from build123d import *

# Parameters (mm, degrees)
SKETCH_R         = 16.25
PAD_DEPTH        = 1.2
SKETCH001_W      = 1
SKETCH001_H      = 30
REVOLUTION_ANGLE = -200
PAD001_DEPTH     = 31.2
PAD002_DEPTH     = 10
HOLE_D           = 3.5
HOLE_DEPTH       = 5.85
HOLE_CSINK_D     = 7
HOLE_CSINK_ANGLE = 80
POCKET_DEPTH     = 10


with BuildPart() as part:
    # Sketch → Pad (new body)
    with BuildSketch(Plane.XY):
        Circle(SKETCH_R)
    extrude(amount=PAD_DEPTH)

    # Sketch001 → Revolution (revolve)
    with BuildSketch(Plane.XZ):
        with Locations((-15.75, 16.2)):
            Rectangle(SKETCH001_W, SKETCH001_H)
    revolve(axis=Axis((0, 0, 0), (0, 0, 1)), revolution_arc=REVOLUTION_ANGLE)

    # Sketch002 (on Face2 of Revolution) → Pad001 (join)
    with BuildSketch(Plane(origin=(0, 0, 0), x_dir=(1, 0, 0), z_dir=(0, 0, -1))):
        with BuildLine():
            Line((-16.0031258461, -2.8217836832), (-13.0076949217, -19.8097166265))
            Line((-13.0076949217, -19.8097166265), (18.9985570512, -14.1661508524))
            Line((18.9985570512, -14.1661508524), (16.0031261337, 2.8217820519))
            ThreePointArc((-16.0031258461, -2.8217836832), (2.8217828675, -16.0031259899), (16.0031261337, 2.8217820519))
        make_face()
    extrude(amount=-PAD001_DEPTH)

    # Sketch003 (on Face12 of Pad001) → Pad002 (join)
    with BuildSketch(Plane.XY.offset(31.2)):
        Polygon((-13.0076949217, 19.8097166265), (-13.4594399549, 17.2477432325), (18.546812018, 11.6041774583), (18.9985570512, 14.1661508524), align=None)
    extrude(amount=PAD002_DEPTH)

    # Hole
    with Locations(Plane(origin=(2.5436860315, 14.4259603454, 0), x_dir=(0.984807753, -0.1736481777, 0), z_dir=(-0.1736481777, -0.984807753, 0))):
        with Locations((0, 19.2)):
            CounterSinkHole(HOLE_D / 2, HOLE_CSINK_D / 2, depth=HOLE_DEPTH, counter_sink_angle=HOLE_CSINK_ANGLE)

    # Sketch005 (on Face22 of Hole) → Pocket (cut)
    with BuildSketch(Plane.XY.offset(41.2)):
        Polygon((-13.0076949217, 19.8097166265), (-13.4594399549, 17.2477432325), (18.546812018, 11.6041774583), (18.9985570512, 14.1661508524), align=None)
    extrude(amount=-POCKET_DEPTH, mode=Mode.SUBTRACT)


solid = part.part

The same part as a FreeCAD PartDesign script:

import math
import FreeCAD as App
import Part
import Sketcher

V = App.Vector
Q = App.Units.Quantity

doc = App.newDocument("Part")
body = doc.addObject("PartDesign::Body", "Body")

sketch1 = doc.addObject("Sketcher::SketchObject", "Sketch")
body.addObject(sketch1)
sketch1.AttachmentSupport = (doc.XY_Plane, [""])
sketch1.MapMode = "FlatFace"
sketch1.addGeometry(Part.Circle(V(0, 0, 0), V(0, 0, 1), 16), False)
sketch1.addConstraint([
    Sketcher.Constraint("Coincident", 0, 3, -1, 1),
    Sketcher.Constraint("Diameter", 0, 32.5),
])
pad1 = doc.addObject("PartDesign::Pad", "Pad")
body.addObject(pad1)
pad1.Profile = sketch1
pad1.Length = 1.2

sketch2 = doc.addObject("Sketcher::SketchObject", "Sketch001")
body.addObject(sketch2)
sketch2.AttachmentSupport = (doc.XZ_Plane, [""])
sketch2.MapMode = "FlatFace"
sketch2.addGeometry([
    Part.LineSegment(V(-16.2, 31.2, 0), V(-16.2, 1.2, 0)),
    Part.LineSegment(V(-16.2, 1.2, 0), V(-15.2, 1.2, 0)),
    Part.LineSegment(V(-15.2, 1.2, 0), V(-15.2, 31.2, 0)),
    Part.LineSegment(V(-15.2, 31.2, 0), V(-16.2, 31.2, 0)),
], False)
sketch2.addConstraint([
    Sketcher.Constraint("Coincident", 0, 2, 1, 1),
    Sketcher.Constraint("Coincident", 1, 2, 2, 1),
    Sketcher.Constraint("Coincident", 2, 2, 3, 1),
    Sketcher.Constraint("Coincident", 3, 2, 0, 1),
    Sketcher.Constraint("Vertical", 0),
    Sketcher.Constraint("Horizontal", 1),
    Sketcher.Constraint("Vertical", 2),
    Sketcher.Constraint("Horizontal", 3),
    Sketcher.Constraint("DistanceX", 1, 1, 1, 2, 1.0),
    Sketcher.Constraint("DistanceY", 0, 2, 0, 1, 30.0),
    Sketcher.Constraint("DistanceY", -1, 1, 0, 2, 1.2),
    Sketcher.Constraint("DistanceX", 0, 2, -1, 1, 16.25),
])
revolution = doc.addObject("PartDesign::Revolution", "Revolution")
body.addObject(revolution)
revolution.Profile = sketch2
revolution.ReferenceAxis = (sketch2, ["V_Axis"])
revolution.Angle = 200
revolution.Reversed = True

sketch3 = doc.addObject("Sketcher::SketchObject", "Sketch002")
body.addObject(sketch3)
sketch3.AttachmentSupport = (doc.XY_Plane, [""])
sketch3.MapMode = "FlatFace"
sketch3.addGeometry([
    Part.LineSegment(V(-16, 3, 0), V(-13, 20, 0)),
    Part.LineSegment(V(-13, 20, 0), V(19, 14, 0)),
    Part.LineSegment(V(19, 14, 0), V(16, -3, 0)),
    Part.ArcOfCircle(Part.Circle(V(0, 0, 0), V(0, 0, 1), 16), math.radians(-10), math.radians(170)),
], False)
sketch3.addConstraint([
    Sketcher.Constraint("Coincident", 0, 2, 1, 1),
    Sketcher.Constraint("Coincident", 1, 2, 2, 1),
    Sketcher.Constraint("Tangent", 2, 2, 3, 1),
    Sketcher.Constraint("Tangent", 3, 2, 0, 1),
    Sketcher.Constraint("Coincident", 3, 3, -1, 1),
    Sketcher.Constraint("Perpendicular", 0, 1),
    Sketcher.Constraint("Perpendicular", 1, 2),
    Sketcher.Constraint("Angle", 0, Q("80 deg")),
    Sketcher.Constraint("Radius", 3, 16.25),
    Sketcher.Constraint("Distance", 0, 17.249999),
])
pad2 = doc.addObject("PartDesign::Pad", "Pad001")
body.addObject(pad2)
pad2.Profile = sketch3
pad2.Length = 31.2

sketch4 = doc.addObject("Sketcher::SketchObject", "Sketch003")
body.addObject(sketch4)
sketch4.AttachmentSupport = (doc.XY_Plane, [""])
sketch4.MapMode = "FlatFace"
sketch4.AttachmentOffset = App.Placement(V(0, 0, 31.2), App.Rotation())
sketch4.addGeometry([
    Part.LineSegment(V(-13, 19.8, 0), V(-13.5, 17.2, 0)),
    Part.LineSegment(V(-13.5, 17.2, 0), V(18.5, 11.6, 0)),
    Part.LineSegment(V(18.5, 11.6, 0), V(19, 14.2, 0)),
    Part.LineSegment(V(19, 14.2, 0), V(-13, 19.8, 0)),
], False)
sketch4.addConstraint([
    Sketcher.Constraint("Coincident", 0, 2, 1, 1),
    Sketcher.Constraint("Coincident", 1, 2, 2, 1),
    Sketcher.Constraint("Coincident", 2, 2, 3, 1),
    Sketcher.Constraint("Coincident", 3, 2, 0, 1),
    Sketcher.Constraint("Perpendicular", 0, 1),
    Sketcher.Constraint("Perpendicular", 1, 2),
    Sketcher.Constraint("Perpendicular", 2, 3),
    Sketcher.Constraint("Angle", 0, Q("-100 deg")),
    Sketcher.Constraint("Distance", 1, 32.5),
    Sketcher.Constraint("DistanceX", 0, 2, -1, 1, 13.45944),
    Sketcher.Constraint("DistanceY", -1, 1, 2, 2, 14.166151),
    Sketcher.Constraint("DistanceY", 1, 2, 3, 2, 8.205539),
])
pad3 = doc.addObject("PartDesign::Pad", "Pad002")
body.addObject(pad3)
pad3.Profile = sketch4
pad3.Length = 10

sketch5 = doc.addObject("Sketcher::SketchObject", "Sketch004")
body.addObject(sketch5)
sketch5.Placement = App.Placement(V(2.543686, 14.42596, 0), App.Rotation(V(0.984807753, -0.173648178, 0), V(0, 0, 1), V(-0.173648178, -0.984807753, 0), "ZXY"))
sketch5.addGeometry(Part.Circle(V(0, 19.2, 0), V(0, 0, 1), 1.8), False)
sketch5.addConstraint([
    Sketcher.Constraint("PointOnObject", 0, 3, -2),
    Sketcher.Constraint("Diameter", 0, 3.5),
    Sketcher.Constraint("DistanceY", -1, 1, 0, 3, 19.2),
])
doc.recompute()
hole = doc.addObject("PartDesign::Hole", "Hole")
body.addObject(hole)
hole.Profile = sketch5
hole.ThreadType = "None"
hole.Diameter = 3.5
hole.DepthType = "Dimension"
hole.Depth = 5.85
hole.DrillPoint = "Flat"
hole.HoleCutType = "Countersink"
hole.HoleCutDiameter = 7
hole.HoleCutCountersinkAngle = 80

sketch6 = doc.addObject("Sketcher::SketchObject", "Sketch005")
body.addObject(sketch6)
sketch6.AttachmentSupport = (doc.XY_Plane, [""])
sketch6.MapMode = "FlatFace"
sketch6.AttachmentOffset = App.Placement(V(0, 0, 41.2), App.Rotation())
sketch6.addGeometry([
    Part.LineSegment(V(-13, 19.8, 0), V(-13.5, 17.2, 0)),
    Part.LineSegment(V(-13.5, 17.2, 0), V(18.5, 11.6, 0)),
    Part.LineSegment(V(18.5, 11.6, 0), V(19, 14.2, 0)),
    Part.LineSegment(V(19, 14.2, 0), V(-13, 19.8, 0)),
], False)
sketch6.addConstraint([
    Sketcher.Constraint("Coincident", 0, 2, 1, 1),
    Sketcher.Constraint("Coincident", 1, 2, 2, 1),
    Sketcher.Constraint("Coincident", 2, 2, 3, 1),
    Sketcher.Constraint("Coincident", 3, 2, 0, 1),
    Sketcher.Constraint("Perpendicular", 0, 1),
    Sketcher.Constraint("Perpendicular", 1, 2),
    Sketcher.Constraint("Perpendicular", 2, 3),
    Sketcher.Constraint("Angle", 0, Q("-100 deg")),
    Sketcher.Constraint("Distance", 1, 32.5),
    Sketcher.Constraint("DistanceX", 0, 2, -1, 1, 13.45944),
    Sketcher.Constraint("DistanceY", -1, 1, 2, 2, 14.166151),
    Sketcher.Constraint("DistanceY", 1, 2, 3, 2, 8.205539),
])
pocket1 = doc.addObject("PartDesign::Pocket", "Pocket")
body.addObject(pocket1)
pocket1.Profile = sketch6
pocket1.Length = 10

doc.recompute()
